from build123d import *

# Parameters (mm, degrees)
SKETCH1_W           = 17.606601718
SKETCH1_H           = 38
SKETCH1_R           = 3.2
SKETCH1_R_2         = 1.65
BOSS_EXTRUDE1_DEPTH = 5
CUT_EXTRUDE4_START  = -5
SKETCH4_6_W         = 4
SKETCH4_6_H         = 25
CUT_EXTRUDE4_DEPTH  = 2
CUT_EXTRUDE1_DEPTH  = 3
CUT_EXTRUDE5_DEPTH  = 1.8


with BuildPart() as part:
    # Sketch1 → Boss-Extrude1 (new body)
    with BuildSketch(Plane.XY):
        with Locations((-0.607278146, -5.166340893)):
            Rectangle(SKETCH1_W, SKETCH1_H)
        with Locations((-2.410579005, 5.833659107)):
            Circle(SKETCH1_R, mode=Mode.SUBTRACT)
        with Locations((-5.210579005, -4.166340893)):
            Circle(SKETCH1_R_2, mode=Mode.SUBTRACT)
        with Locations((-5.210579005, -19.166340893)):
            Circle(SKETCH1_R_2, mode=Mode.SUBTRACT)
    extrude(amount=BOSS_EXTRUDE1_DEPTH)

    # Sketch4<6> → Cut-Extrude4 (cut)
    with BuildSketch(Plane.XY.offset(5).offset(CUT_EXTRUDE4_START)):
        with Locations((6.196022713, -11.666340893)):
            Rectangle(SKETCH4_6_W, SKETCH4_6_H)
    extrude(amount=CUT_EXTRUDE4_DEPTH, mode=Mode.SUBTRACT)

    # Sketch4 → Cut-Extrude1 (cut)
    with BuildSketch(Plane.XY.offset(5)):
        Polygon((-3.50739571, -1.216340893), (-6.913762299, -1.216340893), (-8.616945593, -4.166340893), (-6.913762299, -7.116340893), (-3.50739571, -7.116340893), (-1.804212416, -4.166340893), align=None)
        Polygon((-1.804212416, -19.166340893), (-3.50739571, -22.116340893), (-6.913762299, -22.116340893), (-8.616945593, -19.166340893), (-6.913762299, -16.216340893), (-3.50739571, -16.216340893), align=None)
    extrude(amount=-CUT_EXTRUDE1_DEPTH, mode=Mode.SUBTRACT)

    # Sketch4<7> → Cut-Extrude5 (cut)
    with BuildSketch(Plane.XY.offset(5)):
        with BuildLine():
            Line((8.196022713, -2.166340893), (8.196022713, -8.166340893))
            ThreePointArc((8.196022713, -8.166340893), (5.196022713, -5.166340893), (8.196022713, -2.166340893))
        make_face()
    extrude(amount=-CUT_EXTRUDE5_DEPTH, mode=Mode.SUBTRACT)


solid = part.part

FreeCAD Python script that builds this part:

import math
import FreeCAD as App
import Part
import Sketcher
Q = App.Units.Quantity

doc = App.newDocument("Part")
body = doc.addObject("PartDesign::Body", "Body")

# Sketch on XY plane
sketch1 = body.newObject("Sketcher::SketchObject", "Sketch")
sketch1.AttachmentSupport = (doc.getObject("XY_Plane"), [""])
sketch1.MapMode = "FlatFace"
sketch1.addGeometry([
    Part.LineSegment(App.Vector(-9.4, 13.8, 0), App.Vector(-9.4, -24.2, 0)),  # 0
    Part.LineSegment(App.Vector(-9.4, -24.2, 0), App.Vector(8.2, -24.2, 0)),  # 1
    Part.LineSegment(App.Vector(8.2, -24.2, 0), App.Vector(8.2, 13.8, 0)),  # 2
    Part.LineSegment(App.Vector(8.2, 13.8, 0), App.Vector(-9.4, 13.8, 0)),  # 3
    Part.Circle(App.Vector(-5.2, -19.2, 0), App.Vector(0, 0, 1), 1.6),  # 4
    Part.Circle(App.Vector(-5.2, -4.2, 0), App.Vector(0, 0, 1), 1.6),  # 5
    Part.Circle(App.Vector(-2.4, 5.8, 0), App.Vector(0, 0, 1), 3.2),  # 6
], False)
sketch1.addConstraint([
    Sketcher.Constraint("Coincident", 0, 2, 1, 1),
    Sketcher.Constraint("Coincident", 1, 2, 2, 1),
    Sketcher.Constraint("Coincident", 2, 2, 3, 1),
    Sketcher.Constraint("Coincident", 3, 2, 0, 1),
    Sketcher.Constraint("Vertical", 0),
    Sketcher.Constraint("Horizontal", 1),
    Sketcher.Constraint("Vertical", 2),
    Sketcher.Constraint("Horizontal", 3),
    Sketcher.Constraint("Equal", 4, 5),
    Sketcher.Constraint("Vertical", 4, 3, 5, 3),
    Sketcher.Constraint("Diameter", 4, Q("3.3 mm")),
    Sketcher.Constraint("Diameter", 6, Q("6.4 mm")),
    Sketcher.Constraint("DistanceY", 0, 2, 0, 1, Q("38 mm")),
    Sketcher.Constraint("DistanceY", 4, 3, 5, 3, Q("15 mm")),
    Sketcher.Constraint("DistanceY", 5, 3, 6, 3, Q("10 mm")),
    Sketcher.Constraint("DistanceY", 0, 2, 4, 3, Q("5 mm")),
    Sketcher.Constraint("DistanceX", 0, 2, 6, 3, Q("7 mm")),
    Sketcher.Constraint("DistanceX", 5, 3, 6, 3, Q("2.8 mm")),
    Sketcher.Constraint("DistanceX", 1, 1, 1, 2, Q("17.606602 mm")),
    Sketcher.Constraint("DistanceX", 4, 3, -1, 1, Q("5.210579 mm")),
    Sketcher.Constraint("DistanceY", 4, 3, -1, 1, Q("19.166341 mm")),
])
pad1 = body.newObject("PartDesign::Pad", "Pad")
pad1.Profile = sketch1
pad1.Length = 5

# Sketch on XY plane
sketch2 = body.newObject("Sketcher::SketchObject", "Sketch001")
sketch2.AttachmentSupport = (doc.getObject("XY_Plane"), [""])
sketch2.MapMode = "FlatFace"
sketch2.addGeometry([
    Part.LineSegment(App.Vector(4.2, 0.8, 0), App.Vector(4.2, -24.2, 0)),
    Part.LineSegment(App.Vector(4.2, -24.2, 0), App.Vector(8.2, -24.2, 0)),
    Part.LineSegment(App.Vector(8.2, -24.2, 0), App.Vector(8.2, 0.8, 0)),
    Part.LineSegment(App.Vector(8.2, 0.8, 0), App.Vector(4.2, 0.8, 0)),
], False)
sketch2.addConstraint([
    Sketcher.Constraint("Coincident", 0, 2, 1, 1),
    Sketcher.Constraint("Coincident", 1, 2, 2, 1),
    Sketcher.Constraint("Coincident", 2, 2, 3, 1),
    Sketcher.Constraint("Coincident", 3, 2, 0, 1),
    Sketcher.Constraint("Vertical", 0),
    Sketcher.Constraint("Horizontal", 1),
    Sketcher.Constraint("Vertical", 2),
    Sketcher.Constraint("Horizontal", 3),
    Sketcher.Constraint("DistanceX", 1, 1, 1, 2, Q("4 mm")),
    Sketcher.Constraint("DistanceY", 0, 2, 0, 1, Q("25 mm")),
    Sketcher.Constraint("DistanceY", 0, 2, -1, 1, Q("24.166341 mm")),
    Sketcher.Constraint("DistanceX", -1, 1, 0, 2, Q("4.196023 mm")),
])
pocket1 = body.newObject("PartDesign::Pocket", "Pocket")
pocket1.Profile = sketch2
pocket1.Length = 2
pocket1.Reversed = True

# Sketch on XY plane
sketch3 = body.newObject("Sketcher::SketchObject", "Sketch002")
sketch3.AttachmentSupport = (doc.getObject("XY_Plane"), [""])
sketch3.MapMode = "FlatFace"
sketch3.AttachmentOffset = App.Placement(App.Vector(0, 0, 5), App.Rotation())
sketch3.addGeometry([
    Part.LineSegment(App.Vector(-3.5, -1.2, 0), App.Vector(-6.9, -1.2, 0)),  # 0
    Part.LineSegment(App.Vector(-6.9, -1.2, 0), App.Vector(-8.6, -4.2, 0)),  # 1
    Part.LineSegment(App.Vector(-8.6, -4.2, 0), App.Vector(-6.9, -7.1, 0)),  # 2
    Part.LineSegment(App.Vector(-6.9, -7.1, 0), App.Vector(-3.5, -7.1, 0)),  # 3
    Part.LineSegment(App.Vector(-3.5, -7.1, 0), App.Vector(-1.8, -4.2, 0)),  # 4
    Part.LineSegment(App.Vector(-1.8, -4.2, 0), App.Vector(-3.5, -1.2, 0)),  # 5
    Part.LineSegment(App.Vector(-3.5, -22.1, 0), App.Vector(-1.8, -19.2, 0)),  # 6
    Part.LineSegment(App.Vector(-1.8, -19.2, 0), App.Vector(-3.5, -16.2, 0)),  # 7
    Part.LineSegment(App.Vector(-3.5, -16.2, 0), App.Vector(-6.9, -16.2, 0)),  # 8
    Part.LineSegment(App.Vector(-6.9, -16.2, 0), App.Vector(-8.6, -19.2, 0)),  # 9
    Part.LineSegment(App.Vector(-8.6, -19.2, 0), App.Vector(-6.9, -22.1, 0)),  # 10
    Part.LineSegment(App.Vector(-6.9, -22.1, 0), App.Vector(-3.5, -22.1, 0)),  # 11
], False)
sketch3.addConstraint([
    Sketcher.Constraint("Coincident", 0, 2, 1, 1),
    Sketcher.Constraint("Coincident", 1, 2, 2, 1),
    Sketcher.Constraint("Coincident", 2, 2, 3, 1),
    Sketcher.Constraint("Coincident", 3, 2, 4, 1),
    Sketcher.Constraint("Coincident", 4, 2, 5, 1),
    Sketcher.Constraint("Coincident", 5, 2, 0, 1),
    Sketcher.Constraint("Coincident", 6, 2, 7, 1),
    Sketcher.Constraint("Coincident", 7, 2, 8, 1),
    Sketcher.Constraint("Coincident", 8, 2, 9, 1),
    Sketcher.Constraint("Coincident", 9, 2, 10, 1),
    Sketcher.Constraint("Coincident", 10, 2, 11, 1),
    Sketcher.Constraint("Coincident", 11, 2, 6, 1),
    Sketcher.Constraint("Horizontal", 0),
    Sketcher.Constraint("Horizontal", 3),
    Sketcher.Constraint("Horizontal", 8),
    Sketcher.Constraint("Horizontal", 11),
    Sketcher.Constraint("Parallel", 1, 4),
    Sketcher.Constraint("Parallel", 2, 5),
    Sketcher.Constraint("Parallel", 4, 6),
    Sketcher.Constraint("Parallel", 5, 7),
    Sketcher.Constraint("Parallel", 6, 9),
    Sketcher.Constraint("Parallel", 7, 10),
    Sketcher.Constraint("Horizontal", 1, 2, 4, 2),
    Sketcher.Constraint("Horizontal", 6, 2, 9, 2),
    Sketcher.Constraint("Vertical", 0, 2, 2, 2),
    Sketcher.Constraint("Vertical", 3, 2, 5, 2),
    Sketcher.Constraint("Vertical", 4, 2, 6, 2),
    Sketcher.Constraint("Vertical", 5, 2, 7, 2),
    Sketcher.Constraint("Vertical", 2, 2, 8, 2),
    Sketcher.Constraint("Vertical", 8, 2, 10, 2),
    Sketcher.Constraint("Angle", 1, Q("-120 deg")),
    Sketcher.Constraint("DistanceY", 6, 2, 4, 2, Q("15 mm")),
    Sketcher.Constraint("DistanceY", 2, 2, 0, 2, Q("5.9 mm")),
    Sketcher.Constraint("DistanceX", 0, 2, 0, 1, Q("3.406367 mm")),
    Sketcher.Constraint("DistanceY", 0, 2, -1, 1, Q("1.216341 mm")),
    Sketcher.Constraint("DistanceX", 0, 2, -1, 1, Q("6.913762 mm")),
])
pocket2 = body.newObject("PartDesign::Pocket", "Pocket001")
pocket2.Profile = sketch3
pocket2.Length = 3

# Sketch on XY plane
sketch4 = body.newObject("Sketcher::SketchObject", "Sketch003")
sketch4.AttachmentSupport = (doc.getObject("XY_Plane"), [""])
sketch4.MapMode = "FlatFace"
sketch4.AttachmentOffset = App.Placement(App.Vector(0, 0, 5), App.Rotation())
sketch4.addGeometry([
    Part.LineSegment(App.Vector(8.2, -8.2, 0), App.Vector(8.2, -2.2, 0)),
    Part.ArcOfCircle(Part.Circle(App.Vector(8.2, -5.2, 0), App.Vector(0, 0, 1), 3), math.radians(90), math.radians(270)),
], False)
sketch4.addConstraint([
    Sketcher.Constraint("Coincident", 0, 1, 1, 2),
    Sketcher.Constraint("Coincident", 1, 1, 0, 2),
    Sketcher.Constraint("Vertical", 0),
    Sketcher.Constraint("Vertical", 1, 3, 0, 1),
    Sketcher.Constraint("Radius", 1, Q("3 mm")),
    Sketcher.Constraint("DistanceY", 1, 3, -1, 1, Q("5.166341 mm")),
    Sketcher.Constraint("DistanceX", -1, 1, 1, 3, Q("8.196023 mm")),
])
pocket3 = body.newObject("PartDesign::Pocket", "Pocket002")
pocket3.Profile = sketch4
pocket3.Length = 1.8

doc.recompute()
